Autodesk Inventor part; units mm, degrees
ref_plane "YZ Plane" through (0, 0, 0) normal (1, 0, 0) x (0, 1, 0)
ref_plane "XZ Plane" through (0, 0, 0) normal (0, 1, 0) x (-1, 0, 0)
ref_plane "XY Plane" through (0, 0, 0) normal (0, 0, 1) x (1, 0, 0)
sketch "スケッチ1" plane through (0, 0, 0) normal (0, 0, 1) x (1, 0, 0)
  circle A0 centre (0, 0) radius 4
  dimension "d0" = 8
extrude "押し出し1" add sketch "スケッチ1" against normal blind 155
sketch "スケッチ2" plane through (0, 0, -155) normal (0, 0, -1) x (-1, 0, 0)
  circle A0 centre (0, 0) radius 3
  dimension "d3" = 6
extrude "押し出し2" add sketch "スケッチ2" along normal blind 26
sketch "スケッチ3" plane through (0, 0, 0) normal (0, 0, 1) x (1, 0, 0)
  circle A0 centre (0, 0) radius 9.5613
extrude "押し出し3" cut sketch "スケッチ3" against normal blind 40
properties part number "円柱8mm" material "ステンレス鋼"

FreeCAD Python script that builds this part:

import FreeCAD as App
import Part
import Sketcher

doc = App.newDocument("Part")
body = doc.addObject("PartDesign::Body", "Body")

sketch1 = body.newObject("Sketcher::SketchObject", "Sketch")
sketch1.AttachmentSupport = (doc.getObject("XY_Plane"), [""])
sketch1.MapMode = "FlatFace"
sketch1.addGeometry(Part.Circle(App.Vector(0, 0, 0), App.Vector(0, 0, 1), 4), False)
sketch1.addConstraint(Sketcher.Constraint("Coincident", 0, 3, -1, 1))
sketch1.addConstraint(Sketcher.Constraint("Diameter", 0, 8.0))
pad1 = body.newObject("PartDesign::Pad", "Pad")
pad1.Profile = sketch1
pad1.Length = 155
pad1.Reversed = True

sketch2 = body.newObject("Sketcher::SketchObject", "Sketch001")
sketch2.AttachmentSupport = (doc.getObject("XY_Plane"), [""])
sketch2.MapMode = "FlatFace"
sketch2.AttachmentOffset = App.Placement(App.Vector(0, 0, -155), App.Rotation())
sketch2.addGeometry(Part.Circle(App.Vector(0, 0, 0), App.Vector(0, 0, 1), 3), False)
sketch2.addConstraint(Sketcher.Constraint("Coincident", 0, 3, -1, 1))
sketch2.addConstraint(Sketcher.Constraint("Diameter", 0, 6.0))
pad2 = body.newObject("PartDesign::Pad", "Pad001")
pad2.Profile = sketch2
pad2.Length = 26
pad2.Reversed = True

sketch3 = body.newObject("Sketcher::SketchObject", "Sketch002")
sketch3.AttachmentSupport = (doc.getObject("XY_Plane"), [""])
sketch3.MapMode = "FlatFace"
sketch3.addGeometry(Part.Circle(App.Vector(0, 0, 0), App.Vector(0, 0, 1), 9.5613), False)
sketch3.addConstraint(Sketcher.Constraint("Coincident", 0, 3, -1, 1))
sketch3.addConstraint(Sketcher.Constraint("Diameter", 0, 19.1226))
pocket1 = body.newObject("PartDesign::Pocket", "Pocket")
pocket1.Profile = sketch3
pocket1.Length = 40

doc.recompute()
